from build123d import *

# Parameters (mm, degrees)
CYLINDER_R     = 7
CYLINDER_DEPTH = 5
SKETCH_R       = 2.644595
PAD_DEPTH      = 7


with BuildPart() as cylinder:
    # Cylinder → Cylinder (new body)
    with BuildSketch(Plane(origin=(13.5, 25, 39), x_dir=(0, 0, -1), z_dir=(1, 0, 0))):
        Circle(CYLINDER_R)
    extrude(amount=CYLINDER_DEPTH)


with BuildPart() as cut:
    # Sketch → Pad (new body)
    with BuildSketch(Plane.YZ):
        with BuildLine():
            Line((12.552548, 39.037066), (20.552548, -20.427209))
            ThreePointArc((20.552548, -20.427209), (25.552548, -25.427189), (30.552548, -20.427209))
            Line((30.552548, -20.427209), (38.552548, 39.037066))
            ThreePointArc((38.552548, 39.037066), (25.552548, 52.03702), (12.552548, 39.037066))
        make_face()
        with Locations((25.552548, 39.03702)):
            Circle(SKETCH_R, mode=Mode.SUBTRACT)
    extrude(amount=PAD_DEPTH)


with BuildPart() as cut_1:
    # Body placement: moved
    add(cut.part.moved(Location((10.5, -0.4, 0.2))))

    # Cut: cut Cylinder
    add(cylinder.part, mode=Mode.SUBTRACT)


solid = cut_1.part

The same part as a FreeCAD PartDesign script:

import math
import FreeCAD as App
import Part
import Sketcher

V = App.Vector
Q = App.Units.Quantity

doc = App.newDocument("Part")
body = doc.addObject("PartDesign::Body", "Body")

# Sketch on YZ plane
sketch1 = body.newObject("Sketcher::SketchObject", "Sketch")
sketch1.AttachmentSupport = (doc.getObject("YZ_Plane"), [""])
sketch1.MapMode = "FlatFace"
sketch1.AttachmentOffset = App.Placement(V(0, 0, 13.5), App.Rotation())
sketch1.addGeometry(Part.Circle(V(25, 39, 0), V(0, 0, 1), 7), False)
sketch1.addConstraint(Sketcher.Constraint("Diameter", 0, Q("14 mm")))
sketch1.addConstraint(Sketcher.Constraint("DistanceX", -1, 1, 0, 3, Q("25 mm")))
sketch1.addConstraint(Sketcher.Constraint("DistanceY", -1, 1, 0, 3, Q("39 mm")))
pad1 = body.newObject("PartDesign::Pad", "Pad")
pad1.Profile = sketch1
pad1.Length = 5
body2 = doc.addObject("PartDesign::Body", "Body001")

# Sketch on YZ plane
sketch2 = body2.newObject("Sketcher::SketchObject", "Sketch001")
sketch2.AttachmentSupport = (doc.getObject("YZ_Plane001"), [""])
sketch2.MapMode = "FlatFace"
sketch2.addGeometry(Part.LineSegment(V(12.6, 39, 0), V(20.6, -20.4, 0)), False)
sketch2.addGeometry(Part.ArcOfCircle(Part.Circle(V(25.6, -20.4, 0), V(0, 0, 1), 5), math.radians(-180), math.radians(0)), False)
sketch2.addGeometry(Part.LineSegment(V(30.6, -20.4, 0), V(38.6, 39, 0)), False)
sketch2.addGeometry(Part.ArcOfCircle(Part.Circle(V(25.6, 39, 0), V(0, 0, 1), 13), math.radians(0), math.radians(180)), False)
sketch2.addGeometry(Part.Circle(V(25.6, 39, 0), V(0, 0, 1), 2.6), False)
sketch2.addConstraint(Sketcher.Constraint("Coincident", 0, 2, 1, 1))
sketch2.addConstraint(Sketcher.Constraint("Coincident", 1, 2, 2, 1))
sketch2.addConstraint(Sketcher.Constraint("Coincident", 2, 2, 3, 1))
sketch2.addConstraint(Sketcher.Constraint("Coincident", 3, 2, 0, 1))
sketch2.addConstraint(Sketcher.Constraint("Coincident", 4, 3, 3, 3))
sketch2.addConstraint(Sketcher.Constraint("Horizontal", 0, 2, 1, 2))
sketch2.addConstraint(Sketcher.Constraint("Horizontal", 2, 2, 3, 2))
sketch2.addConstraint(Sketcher.Constraint("Vertical", 1, 3, 3, 3))
sketch2.addConstraint(Sketcher.Constraint("Radius", 1, Q("5 mm")))
sketch2.addConstraint(Sketcher.Constraint("Radius", 3, Q("13 mm")))
sketch2.addConstraint(Sketcher.Constraint("Distance", 0, Q("60 mm")))
sketch2.addConstraint(Sketcher.Constraint("Diameter", 4, Q("5.28919 mm")))
sketch2.addConstraint(Sketcher.Constraint("DistanceX", -1, 1, 1, 3, Q("25.552548 mm")))
sketch2.addConstraint(Sketcher.Constraint("DistanceY", 1, 3, -1, 1, Q("20.427189 mm")))
sketch2.addConstraint(Sketcher.Constraint("DistanceY", -1, 1, 3, 3, Q("39.03702 mm")))
sketch2.addConstraint(Sketcher.Constraint("DistanceY", 0, 2, -1, 1, Q("20.427209 mm")))
pad2 = body2.newObject("PartDesign::Pad", "Pad001")
pad2.Profile = sketch2
pad2.Length = 7
body3 = doc.addObject("PartDesign::Body", "Body002")
doc.recompute()

body2.Placement = App.Placement(V(10.5, -0.4, 0.2), App.Rotation(V(0, 0, 1), 0))
boolean = body3.newObject("PartDesign::Boolean", "Boolean")
boolean.Type = "Fuse"
boolean.addObjects([body2])
doc.recompute()

boolean2 = body3.newObject("PartDesign::Boolean", "Boolean001")
boolean2.Type = "Cut"
boolean2.addObjects([body])

doc.recompute()
